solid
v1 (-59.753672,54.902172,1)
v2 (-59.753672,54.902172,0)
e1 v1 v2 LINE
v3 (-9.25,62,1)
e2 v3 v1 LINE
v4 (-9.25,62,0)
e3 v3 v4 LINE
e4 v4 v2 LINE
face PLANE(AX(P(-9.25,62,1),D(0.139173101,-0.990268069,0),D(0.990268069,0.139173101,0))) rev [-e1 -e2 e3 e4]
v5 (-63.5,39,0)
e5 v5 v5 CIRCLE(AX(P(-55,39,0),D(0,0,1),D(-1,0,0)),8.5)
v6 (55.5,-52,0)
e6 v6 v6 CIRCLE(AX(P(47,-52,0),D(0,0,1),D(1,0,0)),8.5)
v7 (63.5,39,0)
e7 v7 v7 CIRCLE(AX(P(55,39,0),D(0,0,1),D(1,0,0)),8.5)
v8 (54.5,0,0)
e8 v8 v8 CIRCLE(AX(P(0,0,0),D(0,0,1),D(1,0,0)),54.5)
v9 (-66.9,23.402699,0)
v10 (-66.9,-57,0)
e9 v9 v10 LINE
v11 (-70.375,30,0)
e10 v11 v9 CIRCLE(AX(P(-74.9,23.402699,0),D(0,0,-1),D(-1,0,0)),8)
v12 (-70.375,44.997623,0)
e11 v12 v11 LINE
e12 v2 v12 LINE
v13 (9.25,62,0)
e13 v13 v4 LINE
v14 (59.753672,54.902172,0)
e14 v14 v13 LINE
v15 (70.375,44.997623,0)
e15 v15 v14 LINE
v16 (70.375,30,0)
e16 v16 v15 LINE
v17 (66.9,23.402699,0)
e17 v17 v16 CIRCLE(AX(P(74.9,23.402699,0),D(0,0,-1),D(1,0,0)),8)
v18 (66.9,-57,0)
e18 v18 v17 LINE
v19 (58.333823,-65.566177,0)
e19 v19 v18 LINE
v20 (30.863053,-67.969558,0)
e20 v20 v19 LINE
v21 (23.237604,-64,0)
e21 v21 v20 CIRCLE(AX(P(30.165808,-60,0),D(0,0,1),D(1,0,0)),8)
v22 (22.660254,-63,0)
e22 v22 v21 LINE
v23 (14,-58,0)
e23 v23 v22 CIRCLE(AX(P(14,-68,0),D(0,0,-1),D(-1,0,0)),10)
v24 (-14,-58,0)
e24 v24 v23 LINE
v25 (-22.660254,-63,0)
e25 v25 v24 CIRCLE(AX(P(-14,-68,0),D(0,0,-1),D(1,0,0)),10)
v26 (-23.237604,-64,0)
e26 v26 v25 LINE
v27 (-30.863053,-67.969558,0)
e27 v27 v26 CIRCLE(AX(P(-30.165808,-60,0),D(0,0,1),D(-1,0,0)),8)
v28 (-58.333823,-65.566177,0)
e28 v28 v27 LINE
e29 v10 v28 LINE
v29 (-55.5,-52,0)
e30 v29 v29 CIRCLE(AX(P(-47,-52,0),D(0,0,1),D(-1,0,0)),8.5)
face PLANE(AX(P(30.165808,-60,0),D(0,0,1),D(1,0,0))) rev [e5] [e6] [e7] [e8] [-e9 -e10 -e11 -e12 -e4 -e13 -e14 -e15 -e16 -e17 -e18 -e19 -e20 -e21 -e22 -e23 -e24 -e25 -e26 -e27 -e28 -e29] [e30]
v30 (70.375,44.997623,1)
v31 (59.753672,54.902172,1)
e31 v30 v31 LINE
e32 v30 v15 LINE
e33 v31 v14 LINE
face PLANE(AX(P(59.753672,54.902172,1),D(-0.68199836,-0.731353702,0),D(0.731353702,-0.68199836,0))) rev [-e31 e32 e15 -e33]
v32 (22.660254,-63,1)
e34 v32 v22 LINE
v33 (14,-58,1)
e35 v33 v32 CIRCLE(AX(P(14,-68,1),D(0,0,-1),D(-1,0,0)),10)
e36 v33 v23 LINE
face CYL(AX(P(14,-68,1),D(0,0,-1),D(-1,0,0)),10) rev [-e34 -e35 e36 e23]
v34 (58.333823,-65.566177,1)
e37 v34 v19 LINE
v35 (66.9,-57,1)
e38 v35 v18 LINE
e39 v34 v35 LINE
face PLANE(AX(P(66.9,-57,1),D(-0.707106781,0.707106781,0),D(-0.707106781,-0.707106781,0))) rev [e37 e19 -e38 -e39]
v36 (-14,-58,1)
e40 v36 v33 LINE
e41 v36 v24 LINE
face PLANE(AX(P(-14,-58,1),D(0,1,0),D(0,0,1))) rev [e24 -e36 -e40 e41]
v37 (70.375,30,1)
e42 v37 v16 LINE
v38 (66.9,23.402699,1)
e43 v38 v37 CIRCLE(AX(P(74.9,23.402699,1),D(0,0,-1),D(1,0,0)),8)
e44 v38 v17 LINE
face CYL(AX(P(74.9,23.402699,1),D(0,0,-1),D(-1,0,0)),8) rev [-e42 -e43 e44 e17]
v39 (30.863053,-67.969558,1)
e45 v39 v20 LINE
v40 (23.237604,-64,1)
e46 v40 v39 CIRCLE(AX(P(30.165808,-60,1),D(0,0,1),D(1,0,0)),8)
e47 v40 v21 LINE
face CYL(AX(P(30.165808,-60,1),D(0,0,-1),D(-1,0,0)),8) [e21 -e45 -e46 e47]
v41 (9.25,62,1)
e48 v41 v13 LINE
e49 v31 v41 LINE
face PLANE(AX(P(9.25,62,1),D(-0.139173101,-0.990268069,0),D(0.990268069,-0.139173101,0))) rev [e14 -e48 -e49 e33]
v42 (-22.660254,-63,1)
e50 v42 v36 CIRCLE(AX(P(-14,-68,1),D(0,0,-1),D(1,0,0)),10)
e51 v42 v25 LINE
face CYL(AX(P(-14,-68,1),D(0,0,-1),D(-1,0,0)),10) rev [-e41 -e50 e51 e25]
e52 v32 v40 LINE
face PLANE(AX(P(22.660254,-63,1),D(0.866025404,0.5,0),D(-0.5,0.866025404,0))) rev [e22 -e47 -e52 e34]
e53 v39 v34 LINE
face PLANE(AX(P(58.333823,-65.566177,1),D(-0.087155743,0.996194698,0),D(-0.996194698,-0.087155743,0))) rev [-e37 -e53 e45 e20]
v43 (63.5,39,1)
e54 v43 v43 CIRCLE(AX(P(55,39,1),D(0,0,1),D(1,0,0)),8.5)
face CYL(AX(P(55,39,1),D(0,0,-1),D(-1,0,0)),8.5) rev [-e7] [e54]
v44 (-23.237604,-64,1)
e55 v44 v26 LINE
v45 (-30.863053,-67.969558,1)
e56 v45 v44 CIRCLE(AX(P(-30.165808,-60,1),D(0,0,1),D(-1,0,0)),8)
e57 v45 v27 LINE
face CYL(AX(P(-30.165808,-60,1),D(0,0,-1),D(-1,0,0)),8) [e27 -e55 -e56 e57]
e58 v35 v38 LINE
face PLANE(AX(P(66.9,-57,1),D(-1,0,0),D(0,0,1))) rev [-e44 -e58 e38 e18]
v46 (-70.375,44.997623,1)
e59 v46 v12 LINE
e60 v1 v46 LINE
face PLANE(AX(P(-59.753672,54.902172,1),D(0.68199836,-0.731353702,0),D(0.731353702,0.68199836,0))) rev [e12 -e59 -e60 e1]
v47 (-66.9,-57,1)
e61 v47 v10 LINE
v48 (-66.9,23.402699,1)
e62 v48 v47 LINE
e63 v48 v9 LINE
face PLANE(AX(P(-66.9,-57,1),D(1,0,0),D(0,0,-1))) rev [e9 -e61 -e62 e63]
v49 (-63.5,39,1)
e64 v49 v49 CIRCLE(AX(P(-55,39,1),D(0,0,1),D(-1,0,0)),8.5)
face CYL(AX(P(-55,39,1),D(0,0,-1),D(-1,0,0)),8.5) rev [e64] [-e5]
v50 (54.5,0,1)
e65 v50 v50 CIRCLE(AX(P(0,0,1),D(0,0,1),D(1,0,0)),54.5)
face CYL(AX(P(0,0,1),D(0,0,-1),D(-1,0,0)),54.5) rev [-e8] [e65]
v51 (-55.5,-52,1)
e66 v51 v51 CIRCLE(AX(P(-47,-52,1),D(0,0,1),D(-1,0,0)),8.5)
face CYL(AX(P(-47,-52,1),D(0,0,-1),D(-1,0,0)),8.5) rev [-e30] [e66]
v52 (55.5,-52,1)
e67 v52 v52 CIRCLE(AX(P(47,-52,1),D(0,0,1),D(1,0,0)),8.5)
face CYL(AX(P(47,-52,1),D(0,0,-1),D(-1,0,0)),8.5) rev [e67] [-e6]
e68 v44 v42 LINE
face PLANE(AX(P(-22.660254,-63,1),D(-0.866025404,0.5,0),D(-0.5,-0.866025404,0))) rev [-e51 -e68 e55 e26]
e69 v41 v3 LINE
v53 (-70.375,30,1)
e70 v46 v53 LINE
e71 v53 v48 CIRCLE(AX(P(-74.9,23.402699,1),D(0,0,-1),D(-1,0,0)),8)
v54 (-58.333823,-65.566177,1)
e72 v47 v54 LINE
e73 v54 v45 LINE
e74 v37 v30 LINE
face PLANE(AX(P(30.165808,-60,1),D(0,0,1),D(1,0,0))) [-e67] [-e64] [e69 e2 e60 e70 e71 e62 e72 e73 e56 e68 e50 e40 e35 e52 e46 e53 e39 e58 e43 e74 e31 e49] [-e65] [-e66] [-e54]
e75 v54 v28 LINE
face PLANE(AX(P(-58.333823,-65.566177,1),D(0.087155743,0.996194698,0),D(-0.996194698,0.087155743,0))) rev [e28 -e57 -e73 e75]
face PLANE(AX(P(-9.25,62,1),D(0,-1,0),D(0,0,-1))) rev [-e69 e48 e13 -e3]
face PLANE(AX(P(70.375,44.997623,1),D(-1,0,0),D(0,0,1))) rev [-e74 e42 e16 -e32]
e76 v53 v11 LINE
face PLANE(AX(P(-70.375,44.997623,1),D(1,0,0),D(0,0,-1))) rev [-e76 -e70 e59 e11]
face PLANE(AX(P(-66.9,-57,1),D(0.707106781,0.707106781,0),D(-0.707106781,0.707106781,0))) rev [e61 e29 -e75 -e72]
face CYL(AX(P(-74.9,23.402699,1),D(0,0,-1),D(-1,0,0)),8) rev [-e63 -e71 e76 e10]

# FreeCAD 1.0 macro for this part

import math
import FreeCAD as App
import Part
import Sketcher
Q = App.Units.Quantity

doc = App.newDocument("Part")
params = doc.addObject("Spreadsheet::Sheet", "Params")
for row, (alias, value) in enumerate([
    ("sketch1_diameter", "17 mm"),
    ("sketch1_diameter2", "109 mm"),
    ("sketch1_radius", "8 mm"),
    ("sketch1_radius2", "10 mm"),
    ("sketch1_width", "28 mm"),
    ("pad1_length", "1 mm"),
], start=1):
    params.set(f"A{row}", alias)
    params.set(f"B{row}", "=" + value)
    params.setAlias(f"B{row}", alias)

body = doc.addObject("PartDesign::Body", "Body")

# Sketch on XY plane
sketch1 = doc.addObject("Sketcher::SketchObject", "Sketch")
body.addObject(sketch1)
sketch1.AttachmentSupport = (doc.XY_Plane, [""])
sketch1.MapMode = "FlatFace"
sketch1.addGeometry(Part.LineSegment(App.Vector(9.2, 62, 0), App.Vector(-9.2, 62, 0)), False)
sketch1.addGeometry(Part.LineSegment(App.Vector(-9.2, 62, 0), App.Vector(-59.8, 54.9, 0)), False)
sketch1.addGeometry(Part.LineSegment(App.Vector(-59.8, 54.9, 0), App.Vector(-70.4, 45, 0)), False)
sketch1.addGeometry(Part.LineSegment(App.Vector(-70.4, 45, 0), App.Vector(-70.4, 30, 0)), False)
sketch1.addGeometry(Part.ArcOfCircle(Part.Circle(App.Vector(-74.9, 23.4, 0), App.Vector(0, 0, 1), 8), math.radians(0), math.radians(56)), False)
sketch1.addGeometry(Part.LineSegment(App.Vector(-66.9, 23.4, 0), App.Vector(-66.9, -57, 0)), False)
sketch1.addGeometry(Part.LineSegment(App.Vector(-66.9, -57, 0), App.Vector(-58.3, -65.6, 0)), False)
sketch1.addGeometry(Part.LineSegment(App.Vector(-58.3, -65.6, 0), App.Vector(-30.9, -68, 0)), False)
sketch1.addGeometry(Part.ArcOfCircle(Part.Circle(App.Vector(-30.2, -60, 0), App.Vector(0, 0, 1), 8), math.radians(-95), math.radians(-30)), False)
sketch1.addGeometry(Part.LineSegment(App.Vector(-23.2, -64, 0), App.Vector(-22.7, -63, 0)), False)
sketch1.addGeometry(Part.ArcOfCircle(Part.Circle(App.Vector(-14, -68, 0), App.Vector(0, 0, 1), 10), math.radians(90), math.radians(150)), False)
sketch1.addGeometry(Part.LineSegment(App.Vector(-14, -58, 0), App.Vector(14, -58, 0)), False)
sketch1.addGeometry(Part.ArcOfCircle(Part.Circle(App.Vector(14, -68, 0), App.Vector(0, 0, 1), 10), math.radians(30), math.radians(90)), False)
sketch1.addGeometry(Part.LineSegment(App.Vector(22.7, -63, 0), App.Vector(23.2, -64, 0)), False)
sketch1.addGeometry(Part.ArcOfCircle(Part.Circle(App.Vector(30.2, -60, 0), App.Vector(0, 0, 1), 8), math.radians(-150), math.radians(-85)), False)
sketch1.addGeometry(Part.LineSegment(App.Vector(30.9, -68, 0), App.Vector(58.3, -65.6, 0)), False)
sketch1.addGeometry(Part.LineSegment(App.Vector(58.3, -65.6, 0), App.Vector(66.9, -57, 0)), False)
sketch1.addGeometry(Part.LineSegment(App.Vector(66.9, -57, 0), App.Vector(66.9, 23.4, 0)), False)
sketch1.addGeometry(Part.ArcOfCircle(Part.Circle(App.Vector(74.9, 23.4, 0), App.Vector(0, 0, 1), 8), math.radians(124), math.radians(180)), False)
sketch1.addGeometry(Part.LineSegment(App.Vector(70.4, 30, 0), App.Vector(70.4, 45, 0)), False)
sketch1.addGeometry(Part.LineSegment(App.Vector(70.4, 45, 0), App.Vector(59.8, 54.9, 0)), False)
sketch1.addGeometry(Part.LineSegment(App.Vector(59.8, 54.9, 0), App.Vector(9.2, 62, 0)), False)
sketch1.addGeometry(Part.Circle(App.Vector(47, -52, 0), App.Vector(0, 0, 1), 8.5), False)
sketch1.addGeometry(Part.Circle(App.Vector(-47, -52, 0), App.Vector(0, 0, 1), 8.5), False)
sketch1.addGeometry(Part.Circle(App.Vector(55, 39, 0), App.Vector(0, 0, 1), 8.5), False)
sketch1.addGeometry(Part.Circle(App.Vector(0, 0, 0), App.Vector(0, 0, 1), 54.5), False)
sketch1.addGeometry(Part.Circle(App.Vector(-55, 39, 0), App.Vector(0, 0, 1), 8.5), False)
sketch1.addConstraint(Sketcher.Constraint("Coincident", 0, 2, 1, 1))
sketch1.addConstraint(Sketcher.Constraint("Coincident", 1, 2, 2, 1))
sketch1.addConstraint(Sketcher.Constraint("Coincident", 2, 2, 3, 1))
sketch1.addConstraint(Sketcher.Constraint("Coincident", 3, 2, 4, 2))
sketch1.addConstraint(Sketcher.Constraint("Tangent", 4, 1, 5, 1))
sketch1.addConstraint(Sketcher.Constraint("Coincident", 5, 2, 6, 1))
sketch1.addConstraint(Sketcher.Constraint("Coincident", 6, 2, 7, 1))
sketch1.addConstraint(Sketcher.Constraint("Tangent", 7, 2, 8, 1))
sketch1.addConstraint(Sketcher.Constraint("Tangent", 8, 2, 9, 1))
sketch1.addConstraint(Sketcher.Constraint("Tangent", 9, 2, 10, 2))
sketch1.addConstraint(Sketcher.Constraint("Tangent", 10, 1, 11, 1))
sketch1.addConstraint(Sketcher.Constraint("Tangent", 11, 2, 12, 2))
sketch1.addConstraint(Sketcher.Constraint("Tangent", 12, 1, 13, 1))
sketch1.addConstraint(Sketcher.Constraint("Tangent", 13, 2, 14, 1))
sketch1.addConstraint(Sketcher.Constraint("Tangent", 14, 2, 15, 1))
sketch1.addConstraint(Sketcher.Constraint("Coincident", 15, 2, 16, 1))
sketch1.addConstraint(Sketcher.Constraint("Coincident", 16, 2, 17, 1))
sketch1.addConstraint(Sketcher.Constraint("Tangent", 17, 2, 18, 2))
sketch1.addConstraint(Sketcher.Constraint("Coincident", 18, 1, 19, 1))
sketch1.addConstraint(Sketcher.Constraint("Coincident", 19, 2, 20, 1))
sketch1.addConstraint(Sketcher.Constraint("Coincident", 20, 2, 21, 1))
sketch1.addConstraint(Sketcher.Constraint("Coincident", 21, 2, 0, 1))
sketch1.addConstraint(Sketcher.Constraint("Horizontal", 0))
sketch1.addConstraint(Sketcher.Constraint("Vertical", 3))
sketch1.addConstraint(Sketcher.Constraint("Vertical", 5))
sketch1.addConstraint(Sketcher.Constraint("Horizontal", 11))
sketch1.addConstraint(Sketcher.Constraint("Vertical", 17))
sketch1.addConstraint(Sketcher.Constraint("Vertical", 19))
sketch1.addConstraint(Sketcher.Constraint("Coincident", 25, 3, -1, 1))
sketch1.addConstraint(Sketcher.Constraint("Equal", 4, 8))
sketch1.addConstraint(Sketcher.Constraint("Equal", 10, 12))
sketch1.addConstraint(Sketcher.Constraint("Equal", 8, 14))
sketch1.addConstraint(Sketcher.Constraint("Equal", 14, 18))
sketch1.addConstraint(Sketcher.Constraint("Equal", 22, 23))
sketch1.addConstraint(Sketcher.Constraint("Equal", 23, 24))
sketch1.addConstraint(Sketcher.Constraint("Equal", 24, 26))
sketch1.addConstraint(Sketcher.Constraint("Symmetric", 8, 3, 14, 3, -2))
sketch1.addConstraint(Sketcher.Constraint("Symmetric", 4, 3, 18, 3, -2))
sketch1.addConstraint(Sketcher.Constraint("Symmetric", 22, 3, 23, 3, -2))
sketch1.addConstraint(Sketcher.Constraint("Symmetric", 24, 3, 26, 3, -2))
sketch1.addConstraint(Sketcher.Constraint("Symmetric", 6, 2, 15, 2, -2))
sketch1.addConstraint(Sketcher.Constraint("Symmetric", 2, 2, 19, 2, -2))
sketch1.addConstraint(Sketcher.Constraint("Symmetric", 1, 2, 20, 2, -2))
sketch1.addConstraint(Sketcher.Constraint("Perpendicular", 6, 16))
sketch1.addConstraint(Sketcher.Constraint("Horizontal", 9, 2, 12, 1))
sketch1.addConstraint(Sketcher.Constraint("Horizontal", 5, 2, 16, 2))
sketch1.addConstraint(Sketcher.Constraint("Equal", 1, 21))
sketch1.addConstraint(Sketcher.Constraint("Diameter", 22, Q("17 mm")))
sketch1.addConstraint(Sketcher.Constraint("Diameter", 25, Q("109 mm")))
sketch1.addConstraint(Sketcher.Constraint("Radius", 4, Q("8 mm")))
sketch1.addConstraint(Sketcher.Constraint("Radius", 10, Q("10 mm")))
sketch1.addConstraint(Sketcher.Constraint("DistanceX", 11, 1, 11, 2, Q("28 mm")))
sketch1.addConstraint(Sketcher.Constraint("Angle", 1, Q("-172 deg")))
sketch1.addConstraint(Sketcher.Constraint("Angle", 2, Q("-137 deg")))
sketch1.addConstraint(Sketcher.Constraint("Angle", 7, Q("-5 deg")))
sketch1.addConstraint(Sketcher.Constraint("Angle", 9, Q("60 deg")))
sketch1.addConstraint(Sketcher.Constraint("Distance", 1, Q("51 mm")))
sketch1.addConstraint(Sketcher.Constraint("DistanceX", 0, 2, 0, 1, Q("18.5 mm")))
sketch1.addConstraint(Sketcher.Constraint("DistanceY", 8, 3, -1, 1, Q("60 mm")))
sketch1.addConstraint(Sketcher.Constraint("DistanceY", 10, 3, -1, 1, Q("68 mm")))
sketch1.addConstraint(Sketcher.Constraint("DistanceX", -1, 1, 22, 3, Q("47 mm")))
sketch1.addConstraint(Sketcher.Constraint("DistanceY", 22, 3, -1, 1, Q("52 mm")))
sketch1.addConstraint(Sketcher.Constraint("DistanceX", -1, 1, 24, 3, Q("55 mm")))
sketch1.addConstraint(Sketcher.Constraint("DistanceY", -1, 1, 24, 3, Q("39 mm")))
sketch1.addConstraint(Sketcher.Constraint("DistanceY", -1, 1, 0, 2, Q("62 mm")))
sketch1.addConstraint(Sketcher.Constraint("DistanceY", -1, 1, 3, 2, Q("30 mm")))
sketch1.addConstraint(Sketcher.Constraint("DistanceY", 5, 2, -1, 1, Q("57 mm")))
sketch1.addConstraint(Sketcher.Constraint("DistanceX", 4, 3, -1, 1, Q("74.9 mm")))
sketch1.addConstraint(Sketcher.Constraint("DistanceY", 5, 2, 5, 1, Q("80.402699 mm")))
sketch1.setExpression("Constraints[47]", "Params.sketch1_diameter")
sketch1.setExpression("Constraints[48]", "Params.sketch1_diameter2")
sketch1.setExpression("Constraints[49]", "Params.sketch1_radius")
sketch1.setExpression("Constraints[50]", "Params.sketch1_radius2")
sketch1.setExpression("Constraints[51]", "Params.sketch1_width")
pad1 = doc.addObject("PartDesign::Pad", "Pad")
body.addObject(pad1)
pad1.Profile = sketch1
pad1.setExpression("Length", "Params.pad1_length")

doc.recompute()
